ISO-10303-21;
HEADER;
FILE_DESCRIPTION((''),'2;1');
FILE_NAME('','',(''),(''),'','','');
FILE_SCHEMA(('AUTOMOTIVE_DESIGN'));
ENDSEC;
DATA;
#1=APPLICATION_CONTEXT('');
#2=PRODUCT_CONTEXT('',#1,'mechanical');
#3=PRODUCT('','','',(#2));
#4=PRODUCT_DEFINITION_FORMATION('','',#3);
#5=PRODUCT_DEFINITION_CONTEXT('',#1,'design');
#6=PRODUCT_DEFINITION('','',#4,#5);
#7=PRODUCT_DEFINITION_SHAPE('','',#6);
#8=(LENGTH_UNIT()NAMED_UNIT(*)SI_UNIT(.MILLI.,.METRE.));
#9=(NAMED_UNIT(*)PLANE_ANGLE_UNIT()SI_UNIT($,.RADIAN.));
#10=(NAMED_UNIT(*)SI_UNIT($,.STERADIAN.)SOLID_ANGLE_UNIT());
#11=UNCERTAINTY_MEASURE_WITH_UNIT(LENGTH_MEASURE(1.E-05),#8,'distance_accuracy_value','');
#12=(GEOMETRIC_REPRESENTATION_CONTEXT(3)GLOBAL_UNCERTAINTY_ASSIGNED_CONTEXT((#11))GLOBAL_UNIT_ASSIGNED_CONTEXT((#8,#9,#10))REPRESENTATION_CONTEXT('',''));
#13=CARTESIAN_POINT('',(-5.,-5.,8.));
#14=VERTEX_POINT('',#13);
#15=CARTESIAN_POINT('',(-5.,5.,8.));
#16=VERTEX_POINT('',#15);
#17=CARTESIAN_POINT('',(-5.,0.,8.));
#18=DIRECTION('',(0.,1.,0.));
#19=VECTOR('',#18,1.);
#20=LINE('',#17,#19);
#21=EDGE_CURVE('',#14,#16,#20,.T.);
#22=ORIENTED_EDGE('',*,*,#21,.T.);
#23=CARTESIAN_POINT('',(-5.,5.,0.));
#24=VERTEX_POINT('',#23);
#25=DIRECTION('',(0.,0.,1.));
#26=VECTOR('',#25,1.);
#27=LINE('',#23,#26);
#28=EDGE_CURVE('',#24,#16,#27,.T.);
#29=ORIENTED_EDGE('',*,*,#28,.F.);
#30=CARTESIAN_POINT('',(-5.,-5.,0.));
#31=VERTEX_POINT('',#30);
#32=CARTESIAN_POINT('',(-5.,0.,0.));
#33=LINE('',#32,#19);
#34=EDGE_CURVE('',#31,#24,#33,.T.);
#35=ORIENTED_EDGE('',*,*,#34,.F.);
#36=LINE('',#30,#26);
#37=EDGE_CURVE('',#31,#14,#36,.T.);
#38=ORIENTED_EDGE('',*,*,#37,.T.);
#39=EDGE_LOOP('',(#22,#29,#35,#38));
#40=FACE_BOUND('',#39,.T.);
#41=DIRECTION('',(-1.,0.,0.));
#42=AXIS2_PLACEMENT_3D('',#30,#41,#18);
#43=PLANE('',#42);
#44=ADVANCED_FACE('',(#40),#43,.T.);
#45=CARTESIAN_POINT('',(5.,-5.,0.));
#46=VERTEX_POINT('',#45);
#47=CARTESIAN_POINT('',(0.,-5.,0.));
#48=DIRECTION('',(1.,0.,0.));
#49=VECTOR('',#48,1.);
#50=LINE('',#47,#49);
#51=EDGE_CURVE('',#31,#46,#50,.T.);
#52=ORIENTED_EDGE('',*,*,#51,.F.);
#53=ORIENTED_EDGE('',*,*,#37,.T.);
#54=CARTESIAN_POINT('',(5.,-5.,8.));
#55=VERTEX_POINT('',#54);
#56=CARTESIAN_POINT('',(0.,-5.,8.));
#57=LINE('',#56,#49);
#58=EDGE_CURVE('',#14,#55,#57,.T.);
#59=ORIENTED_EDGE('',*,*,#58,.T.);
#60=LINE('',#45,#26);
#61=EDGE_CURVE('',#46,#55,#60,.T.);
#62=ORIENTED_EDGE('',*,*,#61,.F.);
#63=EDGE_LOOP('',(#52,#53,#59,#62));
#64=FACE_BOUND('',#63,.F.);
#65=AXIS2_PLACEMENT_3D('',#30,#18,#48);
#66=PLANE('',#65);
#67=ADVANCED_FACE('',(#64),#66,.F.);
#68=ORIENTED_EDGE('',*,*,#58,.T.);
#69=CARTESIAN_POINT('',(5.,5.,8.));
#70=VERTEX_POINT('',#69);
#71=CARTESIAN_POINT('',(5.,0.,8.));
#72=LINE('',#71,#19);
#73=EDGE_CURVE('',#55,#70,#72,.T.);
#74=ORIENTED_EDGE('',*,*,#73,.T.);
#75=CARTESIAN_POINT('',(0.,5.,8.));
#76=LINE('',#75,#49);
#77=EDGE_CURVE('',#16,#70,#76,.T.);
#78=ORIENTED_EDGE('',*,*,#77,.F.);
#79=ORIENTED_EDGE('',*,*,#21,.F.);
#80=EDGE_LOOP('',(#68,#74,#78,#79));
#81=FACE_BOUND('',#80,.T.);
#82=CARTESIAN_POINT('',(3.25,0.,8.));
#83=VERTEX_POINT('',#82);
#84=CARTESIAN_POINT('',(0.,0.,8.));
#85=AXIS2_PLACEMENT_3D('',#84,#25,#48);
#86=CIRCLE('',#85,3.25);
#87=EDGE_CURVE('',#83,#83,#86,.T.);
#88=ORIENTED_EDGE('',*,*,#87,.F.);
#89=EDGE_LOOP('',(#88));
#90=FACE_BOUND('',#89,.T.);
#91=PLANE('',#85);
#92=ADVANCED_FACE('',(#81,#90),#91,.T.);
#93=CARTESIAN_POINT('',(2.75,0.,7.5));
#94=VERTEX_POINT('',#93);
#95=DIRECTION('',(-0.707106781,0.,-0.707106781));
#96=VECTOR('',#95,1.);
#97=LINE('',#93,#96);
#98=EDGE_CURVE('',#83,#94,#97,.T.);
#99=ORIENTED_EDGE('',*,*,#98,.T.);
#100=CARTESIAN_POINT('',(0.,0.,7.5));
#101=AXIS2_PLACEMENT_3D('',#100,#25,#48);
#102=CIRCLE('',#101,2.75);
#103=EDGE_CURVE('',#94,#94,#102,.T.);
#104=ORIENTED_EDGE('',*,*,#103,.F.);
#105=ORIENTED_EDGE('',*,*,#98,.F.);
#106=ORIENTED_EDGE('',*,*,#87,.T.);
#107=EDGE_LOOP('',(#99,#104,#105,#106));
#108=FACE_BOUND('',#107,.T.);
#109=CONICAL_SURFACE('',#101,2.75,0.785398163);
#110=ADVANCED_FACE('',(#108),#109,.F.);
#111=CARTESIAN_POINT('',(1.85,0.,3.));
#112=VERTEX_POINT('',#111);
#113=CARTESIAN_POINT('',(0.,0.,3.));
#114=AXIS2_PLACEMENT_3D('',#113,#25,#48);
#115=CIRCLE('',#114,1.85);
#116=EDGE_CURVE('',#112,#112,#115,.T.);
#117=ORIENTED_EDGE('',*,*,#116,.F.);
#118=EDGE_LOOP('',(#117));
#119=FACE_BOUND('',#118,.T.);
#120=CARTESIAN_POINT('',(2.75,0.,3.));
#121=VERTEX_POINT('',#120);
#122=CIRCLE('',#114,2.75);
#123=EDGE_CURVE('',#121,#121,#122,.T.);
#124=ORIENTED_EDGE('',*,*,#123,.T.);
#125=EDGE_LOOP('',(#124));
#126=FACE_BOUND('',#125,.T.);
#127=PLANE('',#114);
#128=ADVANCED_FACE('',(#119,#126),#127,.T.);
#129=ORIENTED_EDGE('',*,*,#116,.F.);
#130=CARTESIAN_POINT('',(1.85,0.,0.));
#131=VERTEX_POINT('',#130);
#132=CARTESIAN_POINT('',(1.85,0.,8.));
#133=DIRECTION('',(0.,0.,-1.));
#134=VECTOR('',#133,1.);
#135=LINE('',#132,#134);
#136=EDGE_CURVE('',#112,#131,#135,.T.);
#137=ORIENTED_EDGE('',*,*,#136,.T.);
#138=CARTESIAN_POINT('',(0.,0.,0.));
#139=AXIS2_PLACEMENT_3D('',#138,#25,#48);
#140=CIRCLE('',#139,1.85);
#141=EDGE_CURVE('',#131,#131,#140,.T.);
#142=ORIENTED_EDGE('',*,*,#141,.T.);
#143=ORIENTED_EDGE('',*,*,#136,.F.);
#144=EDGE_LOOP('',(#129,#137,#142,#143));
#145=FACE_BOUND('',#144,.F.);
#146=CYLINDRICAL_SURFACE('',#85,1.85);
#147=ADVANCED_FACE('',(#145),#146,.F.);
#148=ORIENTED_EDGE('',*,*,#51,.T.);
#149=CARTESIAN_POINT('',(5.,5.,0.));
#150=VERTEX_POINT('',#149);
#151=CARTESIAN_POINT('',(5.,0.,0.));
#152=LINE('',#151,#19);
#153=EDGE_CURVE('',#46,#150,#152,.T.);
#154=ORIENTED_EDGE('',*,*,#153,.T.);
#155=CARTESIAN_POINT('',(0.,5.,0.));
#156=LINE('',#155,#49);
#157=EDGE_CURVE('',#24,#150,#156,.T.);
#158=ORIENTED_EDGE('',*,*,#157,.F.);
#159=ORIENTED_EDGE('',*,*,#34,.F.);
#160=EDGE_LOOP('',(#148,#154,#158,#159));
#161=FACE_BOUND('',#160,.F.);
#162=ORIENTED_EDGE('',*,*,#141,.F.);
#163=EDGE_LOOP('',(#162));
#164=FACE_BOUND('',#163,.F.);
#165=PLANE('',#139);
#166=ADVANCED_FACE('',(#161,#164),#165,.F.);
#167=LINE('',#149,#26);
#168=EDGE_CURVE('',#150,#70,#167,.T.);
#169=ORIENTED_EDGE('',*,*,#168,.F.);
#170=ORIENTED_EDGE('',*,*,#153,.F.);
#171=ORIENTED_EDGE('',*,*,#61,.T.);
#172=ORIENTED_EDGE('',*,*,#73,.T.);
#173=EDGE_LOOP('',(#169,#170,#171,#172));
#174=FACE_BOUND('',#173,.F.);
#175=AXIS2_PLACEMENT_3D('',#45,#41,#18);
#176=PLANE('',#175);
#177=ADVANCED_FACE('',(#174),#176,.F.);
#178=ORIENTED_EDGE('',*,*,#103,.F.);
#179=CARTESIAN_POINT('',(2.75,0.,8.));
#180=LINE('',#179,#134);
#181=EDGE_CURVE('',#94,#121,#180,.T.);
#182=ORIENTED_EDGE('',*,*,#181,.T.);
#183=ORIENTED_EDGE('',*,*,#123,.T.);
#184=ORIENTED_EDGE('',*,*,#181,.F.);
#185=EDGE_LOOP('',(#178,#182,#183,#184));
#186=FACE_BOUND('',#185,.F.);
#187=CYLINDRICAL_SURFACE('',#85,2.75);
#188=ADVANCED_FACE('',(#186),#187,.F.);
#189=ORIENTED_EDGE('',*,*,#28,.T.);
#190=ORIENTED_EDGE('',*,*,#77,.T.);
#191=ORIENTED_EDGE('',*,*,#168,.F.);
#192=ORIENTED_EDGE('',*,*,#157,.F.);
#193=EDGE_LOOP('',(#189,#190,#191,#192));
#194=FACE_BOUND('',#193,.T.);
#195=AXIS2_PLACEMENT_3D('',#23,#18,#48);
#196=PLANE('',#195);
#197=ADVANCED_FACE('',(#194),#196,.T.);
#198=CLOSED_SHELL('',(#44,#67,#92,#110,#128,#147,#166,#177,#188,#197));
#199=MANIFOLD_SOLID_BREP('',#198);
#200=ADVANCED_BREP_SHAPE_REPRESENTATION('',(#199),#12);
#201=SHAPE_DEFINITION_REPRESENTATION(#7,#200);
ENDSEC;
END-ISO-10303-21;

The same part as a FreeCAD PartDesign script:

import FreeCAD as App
import Part
import Sketcher

V = App.Vector


def edges_at(feature, points):
    """Names of the edges that pass closest to the given points."""
    edges = feature.Shape.Edges
    near = lambda p: min(range(len(edges)), key=lambda i: edges[i].distToShape(Part.Vertex(*p))[0])
    return sorted({f"Edge{near(p) + 1}" for p in points})


def add_polygon(sketch, points):
    """Adds a closed chain of lines whose ends are joined by coincident constraints."""
    first, n = sketch.GeometryCount, len(points)
    for a, b in zip(points, points[1:] + points[:1]):
        sketch.addGeometry(Part.LineSegment(App.Vector(*a, 0), App.Vector(*b, 0)), False)
    for i in range(n):
        sketch.addConstraint(Sketcher.Constraint("Coincident", first + i, 2, first + (i + 1) % n, 1))

doc = App.newDocument("Part")
params = doc.addObject("Spreadsheet::Sheet", "Params")
for row, (alias, value) in enumerate([
    ("sketch1_width", "10 mm"),
    ("pad1_length", "8 mm"),
    ("sketch2_diameter", "3.7 mm"),
    ("pocket1_length", "8 mm"),
    ("sketch3_diameter", "5.5 mm"),
    ("pocket2_length", "5 mm"),
    ("chamfer_size", "0.5 mm"),
], start=1):
    params.set(f"A{row}", alias)
    params.set(f"B{row}", "=" + value)
    params.setAlias(f"B{row}", alias)

body = doc.addObject("PartDesign::Body", "Body")

sketch1 = doc.addObject("Sketcher::SketchObject", "Sketch")
body.addObject(sketch1)
sketch1.AttachmentSupport = (doc.XY_Plane, [""])
sketch1.MapMode = "FlatFace"
add_polygon(sketch1, [(-5, 5), (-5, -5), (5, -5), (5, 5)])
sketch1.addConstraint([
    Sketcher.Constraint("Vertical", 0),
    Sketcher.Constraint("Horizontal", 1),
    Sketcher.Constraint("Vertical", 2),
    Sketcher.Constraint("Horizontal", 3),
    Sketcher.Constraint("Symmetric", 0, 2, 2, 2, -1, 1),
    Sketcher.Constraint("Equal", 3, 0),
    Sketcher.Constraint("DistanceX", 1, 1, 1, 2, 10.0),
])
sketch1.setExpression("Constraints[10]", "Params.sketch1_width")
pad1 = doc.addObject("PartDesign::Pad", "Pad")
body.addObject(pad1)
pad1.Profile = sketch1
pad1.setExpression("Length", "Params.pad1_length")

sketch2 = doc.addObject("Sketcher::SketchObject", "Sketch001")
body.addObject(sketch2)
sketch2.AttachmentSupport = (doc.XY_Plane, [""])
sketch2.MapMode = "FlatFace"
sketch2.AttachmentOffset = App.Placement(V(0, 0, 8), App.Rotation())
sketch2.addGeometry(Part.Circle(V(0, 0, 0), V(0, 0, 1), 1.9), False)
sketch2.addConstraint([
    Sketcher.Constraint("Coincident", 0, 3, -1, 1),
    Sketcher.Constraint("Diameter", 0, 3.7),
])
sketch2.setExpression("Constraints[1]", "Params.sketch2_diameter")
pocket1 = doc.addObject("PartDesign::Pocket", "Pocket")
body.addObject(pocket1)
pocket1.Profile = sketch2
pocket1.setExpression("Length", "Params.pocket1_length")

sketch3 = doc.addObject("Sketcher::SketchObject", "Sketch002")
body.addObject(sketch3)
sketch3.AttachmentSupport = (doc.XY_Plane, [""])
sketch3.MapMode = "FlatFace"
sketch3.AttachmentOffset = App.Placement(V(0, 0, 8), App.Rotation())
sketch3.addGeometry(Part.Circle(V(0, 0, 0), V(0, 0, 1), 2.8), False)
sketch3.addConstraint([
    Sketcher.Constraint("Coincident", 0, 3, -1, 1),
    Sketcher.Constraint("Diameter", 0, 5.5),
])
sketch3.setExpression("Constraints[1]", "Params.sketch3_diameter")
pocket2 = doc.addObject("PartDesign::Pocket", "Pocket001")
body.addObject(pocket2)
pocket2.Profile = sketch3
pocket2.setExpression("Length", "Params.pocket2_length")
doc.recompute()

chamfer = doc.addObject("PartDesign::Chamfer", "Chamfer")
body.addObject(chamfer)
chamfer.Base = (pocket2, edges_at(pocket2, [(-2.75, 0, 8)]))
chamfer.setExpression("Size", "Params.chamfer_size")

doc.recompute()
